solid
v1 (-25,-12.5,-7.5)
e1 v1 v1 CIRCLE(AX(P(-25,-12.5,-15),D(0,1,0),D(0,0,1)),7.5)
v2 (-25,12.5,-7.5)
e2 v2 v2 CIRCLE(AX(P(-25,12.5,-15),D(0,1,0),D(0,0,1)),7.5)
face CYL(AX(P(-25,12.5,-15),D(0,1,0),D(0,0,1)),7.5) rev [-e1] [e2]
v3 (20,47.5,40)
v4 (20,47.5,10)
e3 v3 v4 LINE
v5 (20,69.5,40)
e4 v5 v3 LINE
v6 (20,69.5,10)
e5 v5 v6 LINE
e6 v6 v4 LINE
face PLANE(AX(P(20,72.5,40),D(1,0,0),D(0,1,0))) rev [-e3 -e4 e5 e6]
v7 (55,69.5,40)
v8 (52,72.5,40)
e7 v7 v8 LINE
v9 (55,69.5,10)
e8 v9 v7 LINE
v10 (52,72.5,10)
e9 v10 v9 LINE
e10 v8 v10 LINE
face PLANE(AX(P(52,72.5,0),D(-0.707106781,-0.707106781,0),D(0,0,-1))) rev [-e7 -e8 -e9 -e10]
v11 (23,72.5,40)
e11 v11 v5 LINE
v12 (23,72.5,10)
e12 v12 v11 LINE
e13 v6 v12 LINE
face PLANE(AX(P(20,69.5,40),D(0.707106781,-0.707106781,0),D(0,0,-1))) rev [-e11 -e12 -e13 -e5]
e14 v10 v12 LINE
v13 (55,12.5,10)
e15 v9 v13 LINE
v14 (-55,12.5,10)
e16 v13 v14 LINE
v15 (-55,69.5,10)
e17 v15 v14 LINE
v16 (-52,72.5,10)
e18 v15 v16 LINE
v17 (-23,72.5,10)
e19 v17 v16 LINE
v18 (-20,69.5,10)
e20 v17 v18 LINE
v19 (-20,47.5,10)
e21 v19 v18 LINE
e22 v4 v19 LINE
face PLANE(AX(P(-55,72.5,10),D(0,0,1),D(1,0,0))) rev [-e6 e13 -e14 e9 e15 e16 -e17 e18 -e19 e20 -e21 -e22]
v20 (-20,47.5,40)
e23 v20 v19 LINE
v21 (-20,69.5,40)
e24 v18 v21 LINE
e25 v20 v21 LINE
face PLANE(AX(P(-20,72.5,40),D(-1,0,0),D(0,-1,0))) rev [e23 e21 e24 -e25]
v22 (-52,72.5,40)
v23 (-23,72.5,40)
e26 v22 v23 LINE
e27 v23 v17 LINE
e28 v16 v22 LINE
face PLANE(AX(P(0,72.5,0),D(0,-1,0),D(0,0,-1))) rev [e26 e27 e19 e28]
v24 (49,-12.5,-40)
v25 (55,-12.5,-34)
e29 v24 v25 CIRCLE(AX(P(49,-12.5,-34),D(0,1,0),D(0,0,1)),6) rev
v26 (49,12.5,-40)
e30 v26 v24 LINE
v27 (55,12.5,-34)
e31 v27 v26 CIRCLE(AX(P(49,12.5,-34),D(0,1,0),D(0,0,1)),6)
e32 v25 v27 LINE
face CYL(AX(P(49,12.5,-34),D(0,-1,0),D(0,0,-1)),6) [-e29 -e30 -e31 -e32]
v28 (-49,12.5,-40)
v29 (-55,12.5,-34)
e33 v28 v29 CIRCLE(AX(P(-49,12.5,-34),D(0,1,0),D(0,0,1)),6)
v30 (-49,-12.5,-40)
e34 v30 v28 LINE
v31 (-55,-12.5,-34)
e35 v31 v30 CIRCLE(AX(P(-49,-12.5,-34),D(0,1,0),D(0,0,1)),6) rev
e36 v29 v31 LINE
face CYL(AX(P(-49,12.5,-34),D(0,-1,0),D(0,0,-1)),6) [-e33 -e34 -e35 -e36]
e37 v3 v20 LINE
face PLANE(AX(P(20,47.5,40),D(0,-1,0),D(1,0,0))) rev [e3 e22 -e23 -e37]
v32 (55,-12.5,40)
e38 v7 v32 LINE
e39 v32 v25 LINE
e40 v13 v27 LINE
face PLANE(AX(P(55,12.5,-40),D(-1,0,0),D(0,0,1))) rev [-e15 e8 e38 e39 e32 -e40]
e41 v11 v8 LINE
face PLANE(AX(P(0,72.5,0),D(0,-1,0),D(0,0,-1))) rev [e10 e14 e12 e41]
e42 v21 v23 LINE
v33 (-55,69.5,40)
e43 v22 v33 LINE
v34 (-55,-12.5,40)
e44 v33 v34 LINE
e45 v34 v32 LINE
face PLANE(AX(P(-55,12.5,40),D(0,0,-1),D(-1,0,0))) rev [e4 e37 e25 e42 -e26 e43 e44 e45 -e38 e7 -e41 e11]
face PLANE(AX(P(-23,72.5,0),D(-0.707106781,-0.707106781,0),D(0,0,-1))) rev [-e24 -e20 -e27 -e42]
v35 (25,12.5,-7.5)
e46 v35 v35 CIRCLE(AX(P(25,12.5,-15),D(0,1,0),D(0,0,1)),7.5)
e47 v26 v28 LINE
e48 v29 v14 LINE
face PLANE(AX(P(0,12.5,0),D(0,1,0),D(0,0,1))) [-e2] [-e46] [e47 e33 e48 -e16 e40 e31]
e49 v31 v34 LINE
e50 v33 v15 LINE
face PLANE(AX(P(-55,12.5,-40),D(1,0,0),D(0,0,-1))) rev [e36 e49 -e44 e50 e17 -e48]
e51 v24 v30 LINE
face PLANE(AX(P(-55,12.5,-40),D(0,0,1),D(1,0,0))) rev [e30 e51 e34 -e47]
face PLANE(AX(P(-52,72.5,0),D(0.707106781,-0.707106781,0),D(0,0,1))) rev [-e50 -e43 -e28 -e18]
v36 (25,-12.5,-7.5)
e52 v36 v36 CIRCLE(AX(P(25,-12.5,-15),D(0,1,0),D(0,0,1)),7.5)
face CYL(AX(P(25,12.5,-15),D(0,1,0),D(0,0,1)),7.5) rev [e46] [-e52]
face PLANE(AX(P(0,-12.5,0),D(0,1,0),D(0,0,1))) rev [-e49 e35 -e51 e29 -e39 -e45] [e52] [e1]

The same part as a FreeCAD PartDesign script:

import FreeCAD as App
import Part
import Sketcher

V = App.Vector


def edges_at(feature, points):
    """Names of the edges that pass closest to the given points."""
    edges = feature.Shape.Edges
    near = lambda p: min(range(len(edges)), key=lambda i: edges[i].distToShape(Part.Vertex(*p))[0])
    return sorted({f"Edge{near(p) + 1}" for p in points})

doc = App.newDocument("Part")
params = doc.addObject("Spreadsheet::Sheet", "Params")
for row, (alias, value) in enumerate([
    ("sketch1_width", "110 mm"),
    ("sketch1_height", "80 mm"),
    ("pad1_length", "25 mm"),
    ("sketch2_width", "110 mm"),
    ("sketch2_height", "30 mm"),
    ("pad2_length", "60 mm"),
    ("sketch3_width", "40 mm"),
    ("sketch3_height", "25 mm"),
    ("chamfer_size", "3 mm"),
    ("fillet_radius", "6 mm"),
    ("sketch4_diameter", "15 mm"),
    ("hole_diameter", "15 mm"),
], start=1):
    params.set(f"A{row}", alias)
    params.set(f"B{row}", "=" + value)
    params.setAlias(f"B{row}", alias)

body = doc.addObject("PartDesign::Body", "Body")

sketch1 = body.newObject("Sketcher::SketchObject", "Sketch")
sketch1.AttachmentSupport = (doc.getObject("XZ_Plane"), [""])
sketch1.MapMode = "FlatFace"
sketch1.addGeometry(Part.LineSegment(V(-55, -40, 0), V(-55, 40, 0)), False)
sketch1.addGeometry(Part.LineSegment(V(-55, 40, 0), V(55, 40, 0)), False)
sketch1.addGeometry(Part.LineSegment(V(55, 40, 0), V(55, -40, 0)), False)
sketch1.addGeometry(Part.LineSegment(V(55, -40, 0), V(-55, -40, 0)), False)
sketch1.addConstraint(Sketcher.Constraint("Coincident", 0, 2, 1, 1))
sketch1.addConstraint(Sketcher.Constraint("Coincident", 1, 2, 2, 1))
sketch1.addConstraint(Sketcher.Constraint("Coincident", 2, 2, 3, 1))
sketch1.addConstraint(Sketcher.Constraint("Coincident", 3, 2, 0, 1))
sketch1.addConstraint(Sketcher.Constraint("Vertical", 0))
sketch1.addConstraint(Sketcher.Constraint("Horizontal", 1))
sketch1.addConstraint(Sketcher.Constraint("Vertical", 2))
sketch1.addConstraint(Sketcher.Constraint("Horizontal", 3))
sketch1.addConstraint(Sketcher.Constraint("Symmetric", 0, 2, 2, 2, -1, 1))
sketch1.addConstraint(Sketcher.Constraint("DistanceX", 1, 1, 1, 2, 110.0))
sketch1.addConstraint(Sketcher.Constraint("DistanceY", 0, 1, 0, 2, 80.0))
sketch1.setExpression("Constraints[9]", "Params.sketch1_width")
sketch1.setExpression("Constraints[10]", "Params.sketch1_height")
pad1 = body.newObject("PartDesign::Pad", "Pad")
pad1.Profile = sketch1
pad1.setExpression("Length", "Params.pad1_length")
pad1.Midplane = True

sketch2 = body.newObject("Sketcher::SketchObject", "Sketch001")
sketch2.AttachmentSupport = (doc.getObject("XZ_Plane"), [""])
sketch2.MapMode = "FlatFace"
sketch2.AttachmentOffset = App.Placement(V(0, 0, -12.5), App.Rotation())
sketch2.addGeometry(Part.LineSegment(V(-55, 10, 0), V(-55, 40, 0)), False)
sketch2.addGeometry(Part.LineSegment(V(-55, 40, 0), V(55, 40, 0)), False)
sketch2.addGeometry(Part.LineSegment(V(55, 40, 0), V(55, 10, 0)), False)
sketch2.addGeometry(Part.LineSegment(V(55, 10, 0), V(-55, 10, 0)), False)
sketch2.addConstraint(Sketcher.Constraint("Coincident", 0, 2, 1, 1))
sketch2.addConstraint(Sketcher.Constraint("Coincident", 1, 2, 2, 1))
sketch2.addConstraint(Sketcher.Constraint("Coincident", 2, 2, 3, 1))
sketch2.addConstraint(Sketcher.Constraint("Coincident", 3, 2, 0, 1))
sketch2.addConstraint(Sketcher.Constraint("Vertical", 0))
sketch2.addConstraint(Sketcher.Constraint("Horizontal", 1))
sketch2.addConstraint(Sketcher.Constraint("Vertical", 2))
sketch2.addConstraint(Sketcher.Constraint("Horizontal", 3))
sketch2.addConstraint(Sketcher.Constraint("DistanceX", 1, 1, 1, 2, 110.0))
sketch2.addConstraint(Sketcher.Constraint("DistanceY", 0, 1, 0, 2, 30.0))
sketch2.addConstraint(Sketcher.Constraint("DistanceX", 0, 2, -1, 1, 55.0))
sketch2.addConstraint(Sketcher.Constraint("DistanceY", -1, 1, 0, 2, 40.0))
sketch2.setExpression("Constraints[8]", "Params.sketch2_width")
sketch2.setExpression("Constraints[9]", "Params.sketch2_height")
pad2 = body.newObject("PartDesign::Pad", "Pad001")
pad2.Profile = sketch2
pad2.setExpression("Length", "Params.pad2_length")
pad2.Reversed = True

sketch3 = body.newObject("Sketcher::SketchObject", "Sketch002")
sketch3.AttachmentSupport = (doc.getObject("XY_Plane"), [""])
sketch3.MapMode = "FlatFace"
sketch3.AttachmentOffset = App.Placement(V(0, 0, 10), App.Rotation())
sketch3.addGeometry(Part.LineSegment(V(20, 72, 0), V(20, 48, 0)), False)
sketch3.addGeometry(Part.LineSegment(V(20, 48, 0), V(-20, 48, 0)), False)
sketch3.addGeometry(Part.LineSegment(V(-20, 48, 0), V(-20, 72, 0)), False)
sketch3.addGeometry(Part.LineSegment(V(-20, 72, 0), V(20, 72, 0)), False)
sketch3.addConstraint(Sketcher.Constraint("Coincident", 0, 2, 1, 1))
sketch3.addConstraint(Sketcher.Constraint("Coincident", 1, 2, 2, 1))
sketch3.addConstraint(Sketcher.Constraint("Coincident", 2, 2, 3, 1))
sketch3.addConstraint(Sketcher.Constraint("Coincident", 3, 2, 0, 1))
sketch3.addConstraint(Sketcher.Constraint("Vertical", 0))
sketch3.addConstraint(Sketcher.Constraint("Horizontal", 1))
sketch3.addConstraint(Sketcher.Constraint("Vertical", 2))
sketch3.addConstraint(Sketcher.Constraint("Horizontal", 3))
sketch3.addConstraint(Sketcher.Constraint("DistanceX", 1, 2, 1, 1, 40.0))
sketch3.addConstraint(Sketcher.Constraint("DistanceY", 0, 2, 0, 1, 25.0))
sketch3.addConstraint(Sketcher.Constraint("DistanceX", -1, 1, 0, 2, 20.0))
sketch3.addConstraint(Sketcher.Constraint("DistanceY", -1, 1, 0, 2, 47.5))
sketch3.setExpression("Constraints[8]", "Params.sketch3_width")
sketch3.setExpression("Constraints[9]", "Params.sketch3_height")
pocket1 = body.newObject("PartDesign::Pocket", "Pocket")
pocket1.Profile = sketch3
pocket1.Type = "ThroughAll"
pocket1.Reversed = True
doc.recompute()

chamfer = body.newObject("PartDesign::Chamfer", "Chamfer")
chamfer.Base = (pocket1, edges_at(pocket1, [
    (-55, 72.5, 25),
    (55, 72.5, 25),
    (20, 72.5, 25),
    (-20, 72.5, 25),
]))
chamfer.setExpression("Size", "Params.chamfer_size")
doc.recompute()

fillet = body.newObject("PartDesign::Fillet", "Fillet")
fillet.Base = (chamfer, edges_at(chamfer, [(-55, 0, -40), (55, 0, -40)]))
fillet.setExpression("Radius", "Params.fillet_radius")

sketch4 = body.newObject("Sketcher::SketchObject", "Sketch003")
sketch4.AttachmentSupport = (doc.getObject("XZ_Plane"), [""])
sketch4.MapMode = "FlatFace"
sketch4.AttachmentOffset = App.Placement(V(0, 0, -12.5), App.Rotation())
sketch4.addGeometry(Part.Circle(V(25, -15, 0), V(0, 0, 1), 8), False)
sketch4.addGeometry(Part.Circle(V(-25, -15, 0), V(0, 0, 1), 8), False)
sketch4.addConstraint(Sketcher.Constraint("Equal", 0, 1))
sketch4.addConstraint(Sketcher.Constraint("Symmetric", 0, 3, 1, 3, -2))
sketch4.addConstraint(Sketcher.Constraint("Diameter", 0, 15.0))
sketch4.addConstraint(Sketcher.Constraint("DistanceX", -1, 1, 0, 3, 25.0))
sketch4.addConstraint(Sketcher.Constraint("DistanceY", 0, 3, -1, 1, 15.0))
sketch4.setExpression("Constraints[2]", "Params.sketch4_diameter")
doc.recompute()
hole = body.newObject("PartDesign::Hole", "Hole")
hole.Profile = sketch4
hole.ThreadType = "None"
hole.setExpression("Diameter", "Params.hole_diameter")
hole.DepthType = "ThroughAll"
hole.Reversed = True

doc.recompute()
